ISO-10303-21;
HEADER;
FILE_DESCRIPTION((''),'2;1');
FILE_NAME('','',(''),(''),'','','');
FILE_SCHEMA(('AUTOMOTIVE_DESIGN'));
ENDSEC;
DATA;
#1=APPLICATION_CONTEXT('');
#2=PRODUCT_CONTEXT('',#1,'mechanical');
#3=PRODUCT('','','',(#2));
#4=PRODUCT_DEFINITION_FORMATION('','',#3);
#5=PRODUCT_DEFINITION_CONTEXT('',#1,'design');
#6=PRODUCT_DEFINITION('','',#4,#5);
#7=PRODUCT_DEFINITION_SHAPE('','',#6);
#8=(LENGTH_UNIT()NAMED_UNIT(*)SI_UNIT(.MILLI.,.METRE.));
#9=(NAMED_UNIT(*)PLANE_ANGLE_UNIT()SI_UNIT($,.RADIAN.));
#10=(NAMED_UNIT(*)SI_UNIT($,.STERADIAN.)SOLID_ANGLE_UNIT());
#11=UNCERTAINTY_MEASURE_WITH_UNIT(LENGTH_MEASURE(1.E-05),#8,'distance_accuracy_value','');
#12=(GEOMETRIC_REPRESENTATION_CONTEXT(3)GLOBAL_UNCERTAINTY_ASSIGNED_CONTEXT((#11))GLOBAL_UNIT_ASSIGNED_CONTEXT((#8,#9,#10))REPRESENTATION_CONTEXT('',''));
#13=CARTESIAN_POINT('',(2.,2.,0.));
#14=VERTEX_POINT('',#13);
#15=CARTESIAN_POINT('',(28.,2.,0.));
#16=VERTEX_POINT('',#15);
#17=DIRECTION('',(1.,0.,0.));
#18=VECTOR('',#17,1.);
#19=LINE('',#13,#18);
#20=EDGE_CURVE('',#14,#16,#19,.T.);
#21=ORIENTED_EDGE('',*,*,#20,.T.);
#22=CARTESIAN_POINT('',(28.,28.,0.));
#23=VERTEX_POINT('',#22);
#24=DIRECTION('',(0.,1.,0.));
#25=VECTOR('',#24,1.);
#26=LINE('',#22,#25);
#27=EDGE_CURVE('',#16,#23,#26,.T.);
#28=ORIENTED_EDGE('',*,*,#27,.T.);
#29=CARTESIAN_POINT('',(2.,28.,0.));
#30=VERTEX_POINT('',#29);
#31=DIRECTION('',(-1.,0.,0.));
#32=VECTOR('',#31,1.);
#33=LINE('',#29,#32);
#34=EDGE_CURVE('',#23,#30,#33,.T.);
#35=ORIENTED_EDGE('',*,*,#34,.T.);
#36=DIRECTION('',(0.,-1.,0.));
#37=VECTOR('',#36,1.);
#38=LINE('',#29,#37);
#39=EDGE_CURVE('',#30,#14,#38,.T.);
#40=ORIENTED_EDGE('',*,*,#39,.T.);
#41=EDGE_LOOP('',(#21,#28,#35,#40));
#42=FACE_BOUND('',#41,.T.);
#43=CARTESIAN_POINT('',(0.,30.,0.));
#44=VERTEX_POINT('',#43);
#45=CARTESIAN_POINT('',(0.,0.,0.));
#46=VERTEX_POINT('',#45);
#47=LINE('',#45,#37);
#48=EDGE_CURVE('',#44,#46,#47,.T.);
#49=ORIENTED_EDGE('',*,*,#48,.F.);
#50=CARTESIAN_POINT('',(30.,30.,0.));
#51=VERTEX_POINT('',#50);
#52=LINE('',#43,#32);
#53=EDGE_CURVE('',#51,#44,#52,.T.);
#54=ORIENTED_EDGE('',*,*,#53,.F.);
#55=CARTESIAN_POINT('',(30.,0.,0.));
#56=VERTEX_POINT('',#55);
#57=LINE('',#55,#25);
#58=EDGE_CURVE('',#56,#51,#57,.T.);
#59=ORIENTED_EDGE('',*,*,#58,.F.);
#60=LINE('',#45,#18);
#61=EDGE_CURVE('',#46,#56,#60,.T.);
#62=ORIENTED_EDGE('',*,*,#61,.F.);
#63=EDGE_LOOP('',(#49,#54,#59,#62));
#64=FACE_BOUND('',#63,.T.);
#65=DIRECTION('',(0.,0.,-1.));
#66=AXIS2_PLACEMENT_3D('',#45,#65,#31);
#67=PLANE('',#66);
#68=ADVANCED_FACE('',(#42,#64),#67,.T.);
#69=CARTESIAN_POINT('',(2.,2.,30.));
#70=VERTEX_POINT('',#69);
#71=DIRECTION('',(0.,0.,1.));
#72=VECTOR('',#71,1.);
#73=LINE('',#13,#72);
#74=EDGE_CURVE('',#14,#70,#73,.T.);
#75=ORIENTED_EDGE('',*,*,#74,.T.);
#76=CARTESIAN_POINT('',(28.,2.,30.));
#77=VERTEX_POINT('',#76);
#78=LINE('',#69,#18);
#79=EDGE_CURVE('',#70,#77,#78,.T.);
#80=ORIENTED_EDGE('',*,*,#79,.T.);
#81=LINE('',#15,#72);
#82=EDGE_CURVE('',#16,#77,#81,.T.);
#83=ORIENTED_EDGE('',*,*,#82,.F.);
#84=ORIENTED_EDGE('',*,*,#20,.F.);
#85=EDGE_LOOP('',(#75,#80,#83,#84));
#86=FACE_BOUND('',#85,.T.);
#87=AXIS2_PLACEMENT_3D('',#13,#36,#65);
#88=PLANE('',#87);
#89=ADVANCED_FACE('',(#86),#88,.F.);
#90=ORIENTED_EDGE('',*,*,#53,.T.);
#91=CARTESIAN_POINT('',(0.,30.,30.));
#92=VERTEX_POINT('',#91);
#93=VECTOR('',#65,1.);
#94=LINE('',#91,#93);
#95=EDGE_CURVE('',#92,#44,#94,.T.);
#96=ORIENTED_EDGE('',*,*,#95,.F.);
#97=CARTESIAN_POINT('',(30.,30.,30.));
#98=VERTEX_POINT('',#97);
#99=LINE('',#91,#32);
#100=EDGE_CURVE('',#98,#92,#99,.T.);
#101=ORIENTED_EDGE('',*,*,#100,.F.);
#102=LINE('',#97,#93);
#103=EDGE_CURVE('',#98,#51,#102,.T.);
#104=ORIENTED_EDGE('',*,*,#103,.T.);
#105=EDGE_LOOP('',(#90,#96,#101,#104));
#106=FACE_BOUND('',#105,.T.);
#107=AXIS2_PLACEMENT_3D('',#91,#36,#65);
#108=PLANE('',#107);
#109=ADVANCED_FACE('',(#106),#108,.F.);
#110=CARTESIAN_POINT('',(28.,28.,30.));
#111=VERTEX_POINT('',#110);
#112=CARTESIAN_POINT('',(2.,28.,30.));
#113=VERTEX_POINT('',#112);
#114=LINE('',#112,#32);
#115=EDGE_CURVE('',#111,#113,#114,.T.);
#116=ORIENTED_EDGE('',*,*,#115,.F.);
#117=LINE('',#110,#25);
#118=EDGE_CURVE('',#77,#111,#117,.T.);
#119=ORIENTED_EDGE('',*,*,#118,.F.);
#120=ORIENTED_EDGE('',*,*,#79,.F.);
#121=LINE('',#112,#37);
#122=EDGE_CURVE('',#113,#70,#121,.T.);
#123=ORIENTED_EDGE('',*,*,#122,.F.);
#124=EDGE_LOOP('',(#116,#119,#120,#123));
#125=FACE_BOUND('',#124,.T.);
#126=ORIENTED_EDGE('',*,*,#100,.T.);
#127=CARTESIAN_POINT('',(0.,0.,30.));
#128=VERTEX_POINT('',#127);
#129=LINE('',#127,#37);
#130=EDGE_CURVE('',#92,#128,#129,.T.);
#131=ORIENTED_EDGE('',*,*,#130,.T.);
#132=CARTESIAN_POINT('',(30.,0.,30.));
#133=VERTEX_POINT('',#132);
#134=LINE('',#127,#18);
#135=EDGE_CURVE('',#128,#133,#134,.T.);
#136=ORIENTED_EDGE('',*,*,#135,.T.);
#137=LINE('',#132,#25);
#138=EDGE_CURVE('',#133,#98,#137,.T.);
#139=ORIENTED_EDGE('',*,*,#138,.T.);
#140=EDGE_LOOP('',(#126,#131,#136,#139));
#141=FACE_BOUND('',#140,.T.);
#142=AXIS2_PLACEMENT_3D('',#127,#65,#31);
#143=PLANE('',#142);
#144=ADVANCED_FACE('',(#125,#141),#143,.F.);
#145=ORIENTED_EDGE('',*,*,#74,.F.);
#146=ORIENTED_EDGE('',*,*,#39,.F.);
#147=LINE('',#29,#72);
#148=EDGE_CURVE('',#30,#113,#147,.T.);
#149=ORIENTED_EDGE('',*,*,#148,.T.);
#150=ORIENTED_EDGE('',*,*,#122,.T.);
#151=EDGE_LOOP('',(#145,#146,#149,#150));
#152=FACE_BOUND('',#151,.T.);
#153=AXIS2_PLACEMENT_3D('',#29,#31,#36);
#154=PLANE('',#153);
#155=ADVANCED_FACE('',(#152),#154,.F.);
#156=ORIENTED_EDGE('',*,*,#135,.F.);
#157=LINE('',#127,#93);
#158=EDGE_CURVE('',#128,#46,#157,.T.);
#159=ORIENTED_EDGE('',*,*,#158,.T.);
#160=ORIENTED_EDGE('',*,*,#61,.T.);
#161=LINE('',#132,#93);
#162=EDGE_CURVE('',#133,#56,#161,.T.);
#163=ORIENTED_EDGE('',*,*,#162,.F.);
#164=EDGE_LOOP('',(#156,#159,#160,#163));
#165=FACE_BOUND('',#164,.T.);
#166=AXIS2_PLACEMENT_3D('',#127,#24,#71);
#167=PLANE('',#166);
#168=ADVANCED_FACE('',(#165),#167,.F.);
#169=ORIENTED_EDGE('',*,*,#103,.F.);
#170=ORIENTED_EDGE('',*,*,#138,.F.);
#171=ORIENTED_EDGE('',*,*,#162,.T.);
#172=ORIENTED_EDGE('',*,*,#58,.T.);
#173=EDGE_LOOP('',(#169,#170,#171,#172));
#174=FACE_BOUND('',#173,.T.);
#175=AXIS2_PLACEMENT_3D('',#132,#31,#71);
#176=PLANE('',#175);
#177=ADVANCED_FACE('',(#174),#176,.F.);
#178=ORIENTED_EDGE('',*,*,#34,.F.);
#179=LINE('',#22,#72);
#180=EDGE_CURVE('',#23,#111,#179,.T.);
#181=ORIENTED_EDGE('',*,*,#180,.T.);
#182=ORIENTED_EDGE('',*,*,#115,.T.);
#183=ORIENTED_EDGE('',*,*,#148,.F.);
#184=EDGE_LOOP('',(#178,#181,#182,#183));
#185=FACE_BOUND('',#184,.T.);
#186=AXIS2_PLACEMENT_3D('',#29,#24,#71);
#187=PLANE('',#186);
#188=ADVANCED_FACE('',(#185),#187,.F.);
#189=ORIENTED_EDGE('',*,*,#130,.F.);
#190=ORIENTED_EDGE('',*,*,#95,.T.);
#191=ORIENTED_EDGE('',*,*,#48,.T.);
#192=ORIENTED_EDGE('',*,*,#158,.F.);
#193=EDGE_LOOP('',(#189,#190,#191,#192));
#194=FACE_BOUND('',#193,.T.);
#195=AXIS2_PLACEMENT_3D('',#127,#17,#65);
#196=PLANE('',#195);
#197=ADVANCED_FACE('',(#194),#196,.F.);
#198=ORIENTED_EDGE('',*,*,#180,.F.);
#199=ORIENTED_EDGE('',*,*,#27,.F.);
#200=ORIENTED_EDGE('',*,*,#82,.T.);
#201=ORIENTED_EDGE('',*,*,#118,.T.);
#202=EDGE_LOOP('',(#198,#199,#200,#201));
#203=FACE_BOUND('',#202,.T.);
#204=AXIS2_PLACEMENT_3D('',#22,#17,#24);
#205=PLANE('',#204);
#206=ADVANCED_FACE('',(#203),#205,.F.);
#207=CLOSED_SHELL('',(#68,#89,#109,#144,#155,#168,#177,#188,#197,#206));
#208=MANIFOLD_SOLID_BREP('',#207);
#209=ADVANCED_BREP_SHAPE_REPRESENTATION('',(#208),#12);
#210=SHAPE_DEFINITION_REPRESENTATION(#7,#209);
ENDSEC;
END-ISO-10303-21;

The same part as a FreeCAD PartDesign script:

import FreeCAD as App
import Part
import Sketcher
from FreeCAD import Vector
Q = App.Units.Quantity

doc = App.newDocument("Part")
body = doc.addObject("PartDesign::Body", "Body")

sketch1 = body.newObject("Sketcher::SketchObject", "Sketch")
sketch1.AttachmentSupport = (doc.getObject("XY_Plane"), [""])
sketch1.MapMode = "FlatFace"
sketch1.addGeometry([
    Part.LineSegment(Vector(0, 30, 0), Vector(0, 0, 0)),
    Part.LineSegment(Vector(0, 0, 0), Vector(30, 0, 0)),
    Part.LineSegment(Vector(30, 0, 0), Vector(30, 30, 0)),
    Part.LineSegment(Vector(30, 30, 0), Vector(0, 30, 0)),
], False)
sketch1.addConstraint([
    Sketcher.Constraint("Coincident", 0, 2, 1, 1),
    Sketcher.Constraint("Coincident", 1, 2, 2, 1),
    Sketcher.Constraint("Coincident", 2, 2, 3, 1),
    Sketcher.Constraint("Coincident", 3, 2, 0, 1),
    Sketcher.Constraint("Vertical", 0),
    Sketcher.Constraint("Horizontal", 1),
    Sketcher.Constraint("Vertical", 2),
    Sketcher.Constraint("Horizontal", 3),
    Sketcher.Constraint("Coincident", 0, 2, -1, 1),
    Sketcher.Constraint("Equal", 3, 0),
    Sketcher.Constraint("DistanceX", 1, 1, 1, 2, Q("30 mm")),
])
pad1 = body.newObject("PartDesign::Pad", "Pad")
pad1.Profile = sketch1
pad1.Length = 30

sketch2 = body.newObject("Sketcher::SketchObject", "Sketch001")
sketch2.AttachmentSupport = (doc.getObject("XY_Plane"), [""])
sketch2.MapMode = "FlatFace"
sketch2.AttachmentOffset = App.Placement(Vector(0, 0, 30), App.Rotation())
sketch2.addGeometry([
    Part.LineSegment(Vector(2, 28, 0), Vector(2, 2, 0)),
    Part.LineSegment(Vector(2, 2, 0), Vector(28, 2, 0)),
    Part.LineSegment(Vector(28, 2, 0), Vector(28, 28, 0)),
    Part.LineSegment(Vector(28, 28, 0), Vector(2, 28, 0)),
], False)
sketch2.addConstraint([
    Sketcher.Constraint("Coincident", 0, 2, 1, 1),
    Sketcher.Constraint("Coincident", 1, 2, 2, 1),
    Sketcher.Constraint("Coincident", 2, 2, 3, 1),
    Sketcher.Constraint("Coincident", 3, 2, 0, 1),
    Sketcher.Constraint("Vertical", 0),
    Sketcher.Constraint("Horizontal", 1),
    Sketcher.Constraint("Vertical", 2),
    Sketcher.Constraint("Horizontal", 3),
    Sketcher.Constraint("Equal", 3, 0),
    Sketcher.Constraint("DistanceX", 1, 1, 1, 2, Q("26 mm")),
    Sketcher.Constraint("DistanceX", -1, 1, 0, 2, Q("2 mm")),
    Sketcher.Constraint("DistanceY", -1, 1, 0, 2, Q("2 mm")),
])
pocket1 = body.newObject("PartDesign::Pocket", "Pocket")
pocket1.Profile = sketch2
pocket1.Type = "ThroughAll"

doc.recompute()
